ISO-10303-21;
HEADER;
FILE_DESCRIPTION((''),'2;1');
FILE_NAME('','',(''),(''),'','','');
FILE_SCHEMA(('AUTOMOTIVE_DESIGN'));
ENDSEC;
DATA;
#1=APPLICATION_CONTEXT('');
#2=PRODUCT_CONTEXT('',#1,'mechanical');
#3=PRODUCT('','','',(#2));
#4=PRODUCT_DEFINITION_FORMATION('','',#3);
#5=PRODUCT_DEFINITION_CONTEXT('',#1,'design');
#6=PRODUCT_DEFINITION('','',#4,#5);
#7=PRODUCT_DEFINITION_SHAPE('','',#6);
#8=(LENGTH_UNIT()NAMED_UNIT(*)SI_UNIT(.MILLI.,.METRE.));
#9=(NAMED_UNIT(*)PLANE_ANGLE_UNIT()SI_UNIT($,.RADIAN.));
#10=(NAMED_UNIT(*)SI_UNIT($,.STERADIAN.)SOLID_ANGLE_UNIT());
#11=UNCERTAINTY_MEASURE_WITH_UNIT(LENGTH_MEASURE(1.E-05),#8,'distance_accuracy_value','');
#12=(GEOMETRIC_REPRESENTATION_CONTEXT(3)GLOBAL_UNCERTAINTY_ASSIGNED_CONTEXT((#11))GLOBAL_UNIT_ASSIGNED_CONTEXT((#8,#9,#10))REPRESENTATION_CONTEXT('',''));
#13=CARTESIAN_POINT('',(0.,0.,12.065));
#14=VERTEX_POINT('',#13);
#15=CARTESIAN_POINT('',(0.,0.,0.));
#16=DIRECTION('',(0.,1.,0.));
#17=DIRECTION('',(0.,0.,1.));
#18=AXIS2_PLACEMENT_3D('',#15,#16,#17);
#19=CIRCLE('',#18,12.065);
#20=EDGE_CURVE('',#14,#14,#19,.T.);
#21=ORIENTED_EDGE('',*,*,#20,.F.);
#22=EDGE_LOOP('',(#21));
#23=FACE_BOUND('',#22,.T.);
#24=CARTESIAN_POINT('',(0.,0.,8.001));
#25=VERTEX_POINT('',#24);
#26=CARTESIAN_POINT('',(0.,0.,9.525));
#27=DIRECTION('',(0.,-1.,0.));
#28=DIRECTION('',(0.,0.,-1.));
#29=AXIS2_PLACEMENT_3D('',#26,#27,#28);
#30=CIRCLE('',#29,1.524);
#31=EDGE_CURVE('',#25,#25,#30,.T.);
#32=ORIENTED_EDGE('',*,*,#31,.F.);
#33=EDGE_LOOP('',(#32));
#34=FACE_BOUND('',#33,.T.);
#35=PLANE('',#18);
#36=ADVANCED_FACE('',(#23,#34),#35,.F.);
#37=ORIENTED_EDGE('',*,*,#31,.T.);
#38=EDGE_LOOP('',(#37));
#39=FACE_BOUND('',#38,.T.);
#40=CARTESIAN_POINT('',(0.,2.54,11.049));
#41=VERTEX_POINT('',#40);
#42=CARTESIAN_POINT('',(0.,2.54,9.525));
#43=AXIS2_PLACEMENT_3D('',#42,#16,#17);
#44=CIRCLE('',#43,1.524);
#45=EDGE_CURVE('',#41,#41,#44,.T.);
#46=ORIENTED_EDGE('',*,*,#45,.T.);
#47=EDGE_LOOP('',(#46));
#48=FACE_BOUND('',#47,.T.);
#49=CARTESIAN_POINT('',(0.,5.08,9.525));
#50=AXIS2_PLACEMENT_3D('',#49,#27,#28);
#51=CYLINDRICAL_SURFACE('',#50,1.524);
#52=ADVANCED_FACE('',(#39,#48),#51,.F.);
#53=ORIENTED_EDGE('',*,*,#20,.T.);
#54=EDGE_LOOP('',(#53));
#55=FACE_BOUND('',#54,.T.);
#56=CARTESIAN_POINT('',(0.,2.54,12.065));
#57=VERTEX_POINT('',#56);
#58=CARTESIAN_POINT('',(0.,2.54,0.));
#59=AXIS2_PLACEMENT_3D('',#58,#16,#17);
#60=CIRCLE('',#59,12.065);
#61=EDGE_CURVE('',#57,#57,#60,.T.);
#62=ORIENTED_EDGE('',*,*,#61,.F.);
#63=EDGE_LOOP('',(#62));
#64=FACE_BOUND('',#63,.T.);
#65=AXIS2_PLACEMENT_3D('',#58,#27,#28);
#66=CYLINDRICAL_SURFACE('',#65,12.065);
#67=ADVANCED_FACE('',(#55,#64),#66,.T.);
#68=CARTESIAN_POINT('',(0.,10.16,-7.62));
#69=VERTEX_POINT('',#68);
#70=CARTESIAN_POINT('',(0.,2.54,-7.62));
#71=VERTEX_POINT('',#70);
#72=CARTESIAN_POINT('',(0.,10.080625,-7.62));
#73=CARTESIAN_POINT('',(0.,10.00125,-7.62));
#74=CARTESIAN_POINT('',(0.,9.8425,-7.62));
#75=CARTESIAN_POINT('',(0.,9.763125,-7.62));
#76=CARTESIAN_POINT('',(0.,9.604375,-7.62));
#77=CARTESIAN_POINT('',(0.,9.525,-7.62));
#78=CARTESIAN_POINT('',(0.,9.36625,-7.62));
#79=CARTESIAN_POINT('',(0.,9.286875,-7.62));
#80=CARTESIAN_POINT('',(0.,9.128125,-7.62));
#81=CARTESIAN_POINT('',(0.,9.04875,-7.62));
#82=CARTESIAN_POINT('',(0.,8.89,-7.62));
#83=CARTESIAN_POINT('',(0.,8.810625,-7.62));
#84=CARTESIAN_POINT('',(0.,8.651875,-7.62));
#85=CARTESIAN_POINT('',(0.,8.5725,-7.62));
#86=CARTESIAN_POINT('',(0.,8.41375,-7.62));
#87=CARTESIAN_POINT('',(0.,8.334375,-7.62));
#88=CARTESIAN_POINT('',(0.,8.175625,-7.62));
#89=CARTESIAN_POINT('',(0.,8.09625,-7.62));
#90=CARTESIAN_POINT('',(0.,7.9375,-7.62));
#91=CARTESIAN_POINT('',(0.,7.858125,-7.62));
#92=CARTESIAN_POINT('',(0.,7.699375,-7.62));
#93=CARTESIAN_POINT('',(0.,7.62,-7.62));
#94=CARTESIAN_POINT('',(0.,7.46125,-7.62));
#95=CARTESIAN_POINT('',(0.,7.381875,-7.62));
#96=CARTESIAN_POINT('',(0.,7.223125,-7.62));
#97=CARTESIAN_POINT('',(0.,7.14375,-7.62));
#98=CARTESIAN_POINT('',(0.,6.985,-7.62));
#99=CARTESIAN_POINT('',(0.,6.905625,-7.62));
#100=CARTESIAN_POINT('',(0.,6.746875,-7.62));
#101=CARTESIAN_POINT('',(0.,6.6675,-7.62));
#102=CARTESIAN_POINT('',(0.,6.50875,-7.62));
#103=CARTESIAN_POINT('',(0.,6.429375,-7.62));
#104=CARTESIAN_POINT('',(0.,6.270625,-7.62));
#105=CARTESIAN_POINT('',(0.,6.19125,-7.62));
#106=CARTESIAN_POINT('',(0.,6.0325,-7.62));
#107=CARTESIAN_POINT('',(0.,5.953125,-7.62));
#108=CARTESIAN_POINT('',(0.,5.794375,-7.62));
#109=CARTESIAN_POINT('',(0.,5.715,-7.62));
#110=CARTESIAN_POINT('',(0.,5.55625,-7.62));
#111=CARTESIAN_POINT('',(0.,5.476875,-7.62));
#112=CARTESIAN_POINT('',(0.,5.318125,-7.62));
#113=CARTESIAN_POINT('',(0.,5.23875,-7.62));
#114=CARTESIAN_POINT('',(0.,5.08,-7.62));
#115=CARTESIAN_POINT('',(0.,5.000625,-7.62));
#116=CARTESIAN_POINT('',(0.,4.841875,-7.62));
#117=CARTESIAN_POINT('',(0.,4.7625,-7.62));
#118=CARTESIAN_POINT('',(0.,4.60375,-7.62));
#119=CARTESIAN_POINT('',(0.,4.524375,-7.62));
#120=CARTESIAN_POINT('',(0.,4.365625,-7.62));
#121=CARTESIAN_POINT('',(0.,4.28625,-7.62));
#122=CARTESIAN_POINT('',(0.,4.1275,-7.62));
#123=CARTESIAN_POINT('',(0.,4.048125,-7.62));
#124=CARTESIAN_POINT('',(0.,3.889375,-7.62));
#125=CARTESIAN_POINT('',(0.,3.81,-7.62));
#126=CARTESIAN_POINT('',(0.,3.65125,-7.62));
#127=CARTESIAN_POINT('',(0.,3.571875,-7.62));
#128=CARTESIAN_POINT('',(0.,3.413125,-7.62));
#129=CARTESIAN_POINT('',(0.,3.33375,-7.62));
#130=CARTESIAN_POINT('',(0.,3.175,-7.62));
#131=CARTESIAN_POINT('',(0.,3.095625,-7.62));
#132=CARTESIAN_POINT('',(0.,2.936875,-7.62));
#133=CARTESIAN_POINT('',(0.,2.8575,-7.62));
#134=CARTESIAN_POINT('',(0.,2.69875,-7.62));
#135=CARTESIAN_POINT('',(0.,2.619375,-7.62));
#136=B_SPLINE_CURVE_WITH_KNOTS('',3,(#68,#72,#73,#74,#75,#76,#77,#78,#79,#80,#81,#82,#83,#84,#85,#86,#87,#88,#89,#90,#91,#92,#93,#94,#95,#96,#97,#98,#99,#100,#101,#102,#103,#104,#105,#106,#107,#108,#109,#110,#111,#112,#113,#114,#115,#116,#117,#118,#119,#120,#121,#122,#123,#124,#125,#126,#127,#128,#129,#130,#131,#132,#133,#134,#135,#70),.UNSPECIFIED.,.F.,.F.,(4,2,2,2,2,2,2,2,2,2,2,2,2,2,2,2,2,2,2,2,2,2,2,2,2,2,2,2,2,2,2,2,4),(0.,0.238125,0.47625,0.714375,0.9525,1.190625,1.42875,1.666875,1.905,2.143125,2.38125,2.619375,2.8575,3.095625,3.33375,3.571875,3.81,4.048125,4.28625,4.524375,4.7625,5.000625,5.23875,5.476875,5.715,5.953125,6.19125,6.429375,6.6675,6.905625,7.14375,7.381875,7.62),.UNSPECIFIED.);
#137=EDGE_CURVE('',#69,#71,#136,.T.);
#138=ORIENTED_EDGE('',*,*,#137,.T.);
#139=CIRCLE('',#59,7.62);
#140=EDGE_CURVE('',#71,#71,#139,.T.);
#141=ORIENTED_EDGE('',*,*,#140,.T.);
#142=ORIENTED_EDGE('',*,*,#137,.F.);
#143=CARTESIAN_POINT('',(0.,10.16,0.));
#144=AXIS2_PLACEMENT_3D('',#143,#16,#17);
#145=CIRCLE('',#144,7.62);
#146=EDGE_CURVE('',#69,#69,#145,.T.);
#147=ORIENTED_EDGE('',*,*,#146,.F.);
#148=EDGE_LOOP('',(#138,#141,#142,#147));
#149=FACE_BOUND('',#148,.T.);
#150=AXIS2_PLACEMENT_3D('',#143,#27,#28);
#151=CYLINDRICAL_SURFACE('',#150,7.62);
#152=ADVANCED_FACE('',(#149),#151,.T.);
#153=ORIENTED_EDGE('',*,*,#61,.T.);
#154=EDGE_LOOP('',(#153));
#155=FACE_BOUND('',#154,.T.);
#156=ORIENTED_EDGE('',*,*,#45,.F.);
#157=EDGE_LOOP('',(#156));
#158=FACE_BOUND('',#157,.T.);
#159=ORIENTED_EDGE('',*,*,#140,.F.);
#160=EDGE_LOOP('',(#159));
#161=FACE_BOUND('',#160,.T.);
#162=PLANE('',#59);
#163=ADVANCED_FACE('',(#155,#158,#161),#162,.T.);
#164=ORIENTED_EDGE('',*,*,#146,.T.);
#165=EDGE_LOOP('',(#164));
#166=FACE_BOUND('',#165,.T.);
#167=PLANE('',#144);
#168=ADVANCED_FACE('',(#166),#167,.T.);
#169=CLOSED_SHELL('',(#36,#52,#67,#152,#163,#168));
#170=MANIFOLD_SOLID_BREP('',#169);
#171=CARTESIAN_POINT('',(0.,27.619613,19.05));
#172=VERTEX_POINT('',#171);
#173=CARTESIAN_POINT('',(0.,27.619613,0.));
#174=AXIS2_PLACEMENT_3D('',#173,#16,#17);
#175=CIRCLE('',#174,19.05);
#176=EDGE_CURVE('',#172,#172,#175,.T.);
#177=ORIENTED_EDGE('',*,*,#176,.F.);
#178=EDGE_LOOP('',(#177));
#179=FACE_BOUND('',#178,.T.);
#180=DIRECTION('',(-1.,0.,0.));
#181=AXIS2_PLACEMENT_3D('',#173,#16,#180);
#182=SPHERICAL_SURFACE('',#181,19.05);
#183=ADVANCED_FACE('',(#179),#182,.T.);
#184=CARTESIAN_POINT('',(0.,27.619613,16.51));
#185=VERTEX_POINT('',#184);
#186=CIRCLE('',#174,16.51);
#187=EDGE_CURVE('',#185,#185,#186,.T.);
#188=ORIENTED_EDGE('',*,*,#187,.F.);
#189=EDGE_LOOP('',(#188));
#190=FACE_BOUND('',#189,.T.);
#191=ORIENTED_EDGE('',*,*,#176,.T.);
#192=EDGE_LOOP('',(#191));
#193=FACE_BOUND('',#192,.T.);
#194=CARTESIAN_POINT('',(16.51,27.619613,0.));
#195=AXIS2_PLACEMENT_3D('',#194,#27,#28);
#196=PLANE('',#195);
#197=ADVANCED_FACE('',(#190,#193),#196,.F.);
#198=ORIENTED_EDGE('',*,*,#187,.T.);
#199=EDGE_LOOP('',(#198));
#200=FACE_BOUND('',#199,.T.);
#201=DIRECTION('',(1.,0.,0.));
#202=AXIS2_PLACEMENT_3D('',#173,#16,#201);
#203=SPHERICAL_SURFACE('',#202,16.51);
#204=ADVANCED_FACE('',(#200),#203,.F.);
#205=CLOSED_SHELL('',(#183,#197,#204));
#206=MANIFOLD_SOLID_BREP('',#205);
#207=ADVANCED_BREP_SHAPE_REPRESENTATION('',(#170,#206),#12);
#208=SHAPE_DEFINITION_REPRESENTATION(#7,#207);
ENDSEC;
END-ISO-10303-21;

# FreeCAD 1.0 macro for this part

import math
import FreeCAD as App
import Part
import Sketcher
from FreeCAD import Vector
Q = App.Units.Quantity

doc = App.newDocument("Part")
body = doc.addObject("PartDesign::Body", "Body")

sketch1 = body.newObject("Sketcher::SketchObject", "Sketch")
sketch1.AttachmentSupport = (doc.getObject("XZ_Plane"), [""])
sketch1.MapMode = "FlatFace"
sketch1.addGeometry(Part.Circle(Vector(0, 0, 0), Vector(0, 0, 1), 12.065), False)
sketch1.addConstraint(Sketcher.Constraint("Coincident", 0, 3, -1, 1))
sketch1.addConstraint(Sketcher.Constraint("Diameter", 0, Q("0.95 in")))
pad1 = body.newObject("PartDesign::Pad", "Pad")
pad1.Profile = sketch1
pad1.Length = Q("0.1 in")
pad1.Reversed = True

sketch2 = body.newObject("Sketcher::SketchObject", "Sketch001")
sketch2.AttachmentSupport = (doc.getObject("XZ_Plane"), [""])
sketch2.MapMode = "FlatFace"
sketch2.AttachmentOffset = App.Placement(Vector(0, 0, -0.1 * 25.4), App.Rotation())
sketch2.addGeometry(Part.Circle(Vector(0, 0, 0), Vector(0, 0, 1), 7.62), False)
sketch2.addConstraint(Sketcher.Constraint("Coincident", 0, 3, -1, 1))
sketch2.addConstraint(Sketcher.Constraint("Diameter", 0, Q("0.6 in")))
pad2 = body.newObject("PartDesign::Pad", "Pad001")
pad2.Profile = sketch2
pad2.Length = Q("0.3 in")
pad2.Reversed = True

sketch3 = body.newObject("Sketcher::SketchObject", "Sketch002")
sketch3.AttachmentSupport = (doc.getObject("XZ_Plane"), [""])
sketch3.MapMode = "FlatFace"
sketch3.addGeometry(Part.Circle(Vector(0, 9.525, 0), Vector(0, 0, 1), 1.524), False)
sketch3.addConstraint(Sketcher.Constraint("PointOnObject", 0, 3, -2))
sketch3.addConstraint(Sketcher.Constraint("Diameter", 0, Q("0.12 in")))
sketch3.addConstraint(Sketcher.Constraint("DistanceY", -1, 1, 0, 3, Q("0.375 in")))
pocket1 = body.newObject("PartDesign::Pocket", "Pocket")
pocket1.Profile = sketch3
pocket1.Length = Q("0.2 in")
body2 = doc.addObject("PartDesign::Body", "Body001")

sketch4 = body2.newObject("Sketcher::SketchObject", "Sketch003")
sketch4.AttachmentSupport = (doc.getObject("XY_Plane001"), [""])
sketch4.MapMode = "FlatFace"
sketch4.addGeometry(Part.LineSegment(Vector(19.05, 27.619613, 0), Vector(16.51, 27.619613, 0)), False)
sketch4.addGeometry(Part.ArcOfCircle(Part.Circle(Vector(0, 27.619613, 0), Vector(0, 0, 1), 16.51), math.radians(-90), math.radians(0)), False)
sketch4.addGeometry(Part.LineSegment(Vector(0, 11.109613, 0), Vector(0, 8.569613, 0)), False)
sketch4.addGeometry(Part.ArcOfCircle(Part.Circle(Vector(0, 27.619613, 0), Vector(0, 0, 1), 19.05), math.radians(-90), math.radians(0)), False)
sketch4.addConstraint(Sketcher.Constraint("Coincident", 0, 2, 1, 2))
sketch4.addConstraint(Sketcher.Constraint("Coincident", 1, 1, 2, 1))
sketch4.addConstraint(Sketcher.Constraint("Coincident", 2, 2, 3, 1))
sketch4.addConstraint(Sketcher.Constraint("Coincident", 3, 2, 0, 1))
sketch4.addConstraint(Sketcher.Constraint("Horizontal", 0))
sketch4.addConstraint(Sketcher.Constraint("Vertical", 2))
sketch4.addConstraint(Sketcher.Constraint("Coincident", 3, 3, 1, 3))
sketch4.addConstraint(Sketcher.Constraint("PointOnObject", 1, 3, -2))
sketch4.addConstraint(Sketcher.Constraint("PointOnObject", 1, 1, -2))
sketch4.addConstraint(Sketcher.Constraint("Horizontal", 3, 3, 0, 2))
sketch4.addConstraint(Sketcher.Constraint("Radius", 1, Q("0.65 in")))
sketch4.addConstraint(Sketcher.Constraint("Radius", 3, Q("0.75 in")))
sketch4.addConstraint(Sketcher.Constraint("DistanceY", -1, 1, 1, 3, Q("27.619613 mm")))
revolution = body2.newObject("PartDesign::Revolution", "Revolution")
revolution.Profile = sketch4
revolution.ReferenceAxis = (sketch4, ["V_Axis"])
revolution.Angle = 360

doc.recompute()
